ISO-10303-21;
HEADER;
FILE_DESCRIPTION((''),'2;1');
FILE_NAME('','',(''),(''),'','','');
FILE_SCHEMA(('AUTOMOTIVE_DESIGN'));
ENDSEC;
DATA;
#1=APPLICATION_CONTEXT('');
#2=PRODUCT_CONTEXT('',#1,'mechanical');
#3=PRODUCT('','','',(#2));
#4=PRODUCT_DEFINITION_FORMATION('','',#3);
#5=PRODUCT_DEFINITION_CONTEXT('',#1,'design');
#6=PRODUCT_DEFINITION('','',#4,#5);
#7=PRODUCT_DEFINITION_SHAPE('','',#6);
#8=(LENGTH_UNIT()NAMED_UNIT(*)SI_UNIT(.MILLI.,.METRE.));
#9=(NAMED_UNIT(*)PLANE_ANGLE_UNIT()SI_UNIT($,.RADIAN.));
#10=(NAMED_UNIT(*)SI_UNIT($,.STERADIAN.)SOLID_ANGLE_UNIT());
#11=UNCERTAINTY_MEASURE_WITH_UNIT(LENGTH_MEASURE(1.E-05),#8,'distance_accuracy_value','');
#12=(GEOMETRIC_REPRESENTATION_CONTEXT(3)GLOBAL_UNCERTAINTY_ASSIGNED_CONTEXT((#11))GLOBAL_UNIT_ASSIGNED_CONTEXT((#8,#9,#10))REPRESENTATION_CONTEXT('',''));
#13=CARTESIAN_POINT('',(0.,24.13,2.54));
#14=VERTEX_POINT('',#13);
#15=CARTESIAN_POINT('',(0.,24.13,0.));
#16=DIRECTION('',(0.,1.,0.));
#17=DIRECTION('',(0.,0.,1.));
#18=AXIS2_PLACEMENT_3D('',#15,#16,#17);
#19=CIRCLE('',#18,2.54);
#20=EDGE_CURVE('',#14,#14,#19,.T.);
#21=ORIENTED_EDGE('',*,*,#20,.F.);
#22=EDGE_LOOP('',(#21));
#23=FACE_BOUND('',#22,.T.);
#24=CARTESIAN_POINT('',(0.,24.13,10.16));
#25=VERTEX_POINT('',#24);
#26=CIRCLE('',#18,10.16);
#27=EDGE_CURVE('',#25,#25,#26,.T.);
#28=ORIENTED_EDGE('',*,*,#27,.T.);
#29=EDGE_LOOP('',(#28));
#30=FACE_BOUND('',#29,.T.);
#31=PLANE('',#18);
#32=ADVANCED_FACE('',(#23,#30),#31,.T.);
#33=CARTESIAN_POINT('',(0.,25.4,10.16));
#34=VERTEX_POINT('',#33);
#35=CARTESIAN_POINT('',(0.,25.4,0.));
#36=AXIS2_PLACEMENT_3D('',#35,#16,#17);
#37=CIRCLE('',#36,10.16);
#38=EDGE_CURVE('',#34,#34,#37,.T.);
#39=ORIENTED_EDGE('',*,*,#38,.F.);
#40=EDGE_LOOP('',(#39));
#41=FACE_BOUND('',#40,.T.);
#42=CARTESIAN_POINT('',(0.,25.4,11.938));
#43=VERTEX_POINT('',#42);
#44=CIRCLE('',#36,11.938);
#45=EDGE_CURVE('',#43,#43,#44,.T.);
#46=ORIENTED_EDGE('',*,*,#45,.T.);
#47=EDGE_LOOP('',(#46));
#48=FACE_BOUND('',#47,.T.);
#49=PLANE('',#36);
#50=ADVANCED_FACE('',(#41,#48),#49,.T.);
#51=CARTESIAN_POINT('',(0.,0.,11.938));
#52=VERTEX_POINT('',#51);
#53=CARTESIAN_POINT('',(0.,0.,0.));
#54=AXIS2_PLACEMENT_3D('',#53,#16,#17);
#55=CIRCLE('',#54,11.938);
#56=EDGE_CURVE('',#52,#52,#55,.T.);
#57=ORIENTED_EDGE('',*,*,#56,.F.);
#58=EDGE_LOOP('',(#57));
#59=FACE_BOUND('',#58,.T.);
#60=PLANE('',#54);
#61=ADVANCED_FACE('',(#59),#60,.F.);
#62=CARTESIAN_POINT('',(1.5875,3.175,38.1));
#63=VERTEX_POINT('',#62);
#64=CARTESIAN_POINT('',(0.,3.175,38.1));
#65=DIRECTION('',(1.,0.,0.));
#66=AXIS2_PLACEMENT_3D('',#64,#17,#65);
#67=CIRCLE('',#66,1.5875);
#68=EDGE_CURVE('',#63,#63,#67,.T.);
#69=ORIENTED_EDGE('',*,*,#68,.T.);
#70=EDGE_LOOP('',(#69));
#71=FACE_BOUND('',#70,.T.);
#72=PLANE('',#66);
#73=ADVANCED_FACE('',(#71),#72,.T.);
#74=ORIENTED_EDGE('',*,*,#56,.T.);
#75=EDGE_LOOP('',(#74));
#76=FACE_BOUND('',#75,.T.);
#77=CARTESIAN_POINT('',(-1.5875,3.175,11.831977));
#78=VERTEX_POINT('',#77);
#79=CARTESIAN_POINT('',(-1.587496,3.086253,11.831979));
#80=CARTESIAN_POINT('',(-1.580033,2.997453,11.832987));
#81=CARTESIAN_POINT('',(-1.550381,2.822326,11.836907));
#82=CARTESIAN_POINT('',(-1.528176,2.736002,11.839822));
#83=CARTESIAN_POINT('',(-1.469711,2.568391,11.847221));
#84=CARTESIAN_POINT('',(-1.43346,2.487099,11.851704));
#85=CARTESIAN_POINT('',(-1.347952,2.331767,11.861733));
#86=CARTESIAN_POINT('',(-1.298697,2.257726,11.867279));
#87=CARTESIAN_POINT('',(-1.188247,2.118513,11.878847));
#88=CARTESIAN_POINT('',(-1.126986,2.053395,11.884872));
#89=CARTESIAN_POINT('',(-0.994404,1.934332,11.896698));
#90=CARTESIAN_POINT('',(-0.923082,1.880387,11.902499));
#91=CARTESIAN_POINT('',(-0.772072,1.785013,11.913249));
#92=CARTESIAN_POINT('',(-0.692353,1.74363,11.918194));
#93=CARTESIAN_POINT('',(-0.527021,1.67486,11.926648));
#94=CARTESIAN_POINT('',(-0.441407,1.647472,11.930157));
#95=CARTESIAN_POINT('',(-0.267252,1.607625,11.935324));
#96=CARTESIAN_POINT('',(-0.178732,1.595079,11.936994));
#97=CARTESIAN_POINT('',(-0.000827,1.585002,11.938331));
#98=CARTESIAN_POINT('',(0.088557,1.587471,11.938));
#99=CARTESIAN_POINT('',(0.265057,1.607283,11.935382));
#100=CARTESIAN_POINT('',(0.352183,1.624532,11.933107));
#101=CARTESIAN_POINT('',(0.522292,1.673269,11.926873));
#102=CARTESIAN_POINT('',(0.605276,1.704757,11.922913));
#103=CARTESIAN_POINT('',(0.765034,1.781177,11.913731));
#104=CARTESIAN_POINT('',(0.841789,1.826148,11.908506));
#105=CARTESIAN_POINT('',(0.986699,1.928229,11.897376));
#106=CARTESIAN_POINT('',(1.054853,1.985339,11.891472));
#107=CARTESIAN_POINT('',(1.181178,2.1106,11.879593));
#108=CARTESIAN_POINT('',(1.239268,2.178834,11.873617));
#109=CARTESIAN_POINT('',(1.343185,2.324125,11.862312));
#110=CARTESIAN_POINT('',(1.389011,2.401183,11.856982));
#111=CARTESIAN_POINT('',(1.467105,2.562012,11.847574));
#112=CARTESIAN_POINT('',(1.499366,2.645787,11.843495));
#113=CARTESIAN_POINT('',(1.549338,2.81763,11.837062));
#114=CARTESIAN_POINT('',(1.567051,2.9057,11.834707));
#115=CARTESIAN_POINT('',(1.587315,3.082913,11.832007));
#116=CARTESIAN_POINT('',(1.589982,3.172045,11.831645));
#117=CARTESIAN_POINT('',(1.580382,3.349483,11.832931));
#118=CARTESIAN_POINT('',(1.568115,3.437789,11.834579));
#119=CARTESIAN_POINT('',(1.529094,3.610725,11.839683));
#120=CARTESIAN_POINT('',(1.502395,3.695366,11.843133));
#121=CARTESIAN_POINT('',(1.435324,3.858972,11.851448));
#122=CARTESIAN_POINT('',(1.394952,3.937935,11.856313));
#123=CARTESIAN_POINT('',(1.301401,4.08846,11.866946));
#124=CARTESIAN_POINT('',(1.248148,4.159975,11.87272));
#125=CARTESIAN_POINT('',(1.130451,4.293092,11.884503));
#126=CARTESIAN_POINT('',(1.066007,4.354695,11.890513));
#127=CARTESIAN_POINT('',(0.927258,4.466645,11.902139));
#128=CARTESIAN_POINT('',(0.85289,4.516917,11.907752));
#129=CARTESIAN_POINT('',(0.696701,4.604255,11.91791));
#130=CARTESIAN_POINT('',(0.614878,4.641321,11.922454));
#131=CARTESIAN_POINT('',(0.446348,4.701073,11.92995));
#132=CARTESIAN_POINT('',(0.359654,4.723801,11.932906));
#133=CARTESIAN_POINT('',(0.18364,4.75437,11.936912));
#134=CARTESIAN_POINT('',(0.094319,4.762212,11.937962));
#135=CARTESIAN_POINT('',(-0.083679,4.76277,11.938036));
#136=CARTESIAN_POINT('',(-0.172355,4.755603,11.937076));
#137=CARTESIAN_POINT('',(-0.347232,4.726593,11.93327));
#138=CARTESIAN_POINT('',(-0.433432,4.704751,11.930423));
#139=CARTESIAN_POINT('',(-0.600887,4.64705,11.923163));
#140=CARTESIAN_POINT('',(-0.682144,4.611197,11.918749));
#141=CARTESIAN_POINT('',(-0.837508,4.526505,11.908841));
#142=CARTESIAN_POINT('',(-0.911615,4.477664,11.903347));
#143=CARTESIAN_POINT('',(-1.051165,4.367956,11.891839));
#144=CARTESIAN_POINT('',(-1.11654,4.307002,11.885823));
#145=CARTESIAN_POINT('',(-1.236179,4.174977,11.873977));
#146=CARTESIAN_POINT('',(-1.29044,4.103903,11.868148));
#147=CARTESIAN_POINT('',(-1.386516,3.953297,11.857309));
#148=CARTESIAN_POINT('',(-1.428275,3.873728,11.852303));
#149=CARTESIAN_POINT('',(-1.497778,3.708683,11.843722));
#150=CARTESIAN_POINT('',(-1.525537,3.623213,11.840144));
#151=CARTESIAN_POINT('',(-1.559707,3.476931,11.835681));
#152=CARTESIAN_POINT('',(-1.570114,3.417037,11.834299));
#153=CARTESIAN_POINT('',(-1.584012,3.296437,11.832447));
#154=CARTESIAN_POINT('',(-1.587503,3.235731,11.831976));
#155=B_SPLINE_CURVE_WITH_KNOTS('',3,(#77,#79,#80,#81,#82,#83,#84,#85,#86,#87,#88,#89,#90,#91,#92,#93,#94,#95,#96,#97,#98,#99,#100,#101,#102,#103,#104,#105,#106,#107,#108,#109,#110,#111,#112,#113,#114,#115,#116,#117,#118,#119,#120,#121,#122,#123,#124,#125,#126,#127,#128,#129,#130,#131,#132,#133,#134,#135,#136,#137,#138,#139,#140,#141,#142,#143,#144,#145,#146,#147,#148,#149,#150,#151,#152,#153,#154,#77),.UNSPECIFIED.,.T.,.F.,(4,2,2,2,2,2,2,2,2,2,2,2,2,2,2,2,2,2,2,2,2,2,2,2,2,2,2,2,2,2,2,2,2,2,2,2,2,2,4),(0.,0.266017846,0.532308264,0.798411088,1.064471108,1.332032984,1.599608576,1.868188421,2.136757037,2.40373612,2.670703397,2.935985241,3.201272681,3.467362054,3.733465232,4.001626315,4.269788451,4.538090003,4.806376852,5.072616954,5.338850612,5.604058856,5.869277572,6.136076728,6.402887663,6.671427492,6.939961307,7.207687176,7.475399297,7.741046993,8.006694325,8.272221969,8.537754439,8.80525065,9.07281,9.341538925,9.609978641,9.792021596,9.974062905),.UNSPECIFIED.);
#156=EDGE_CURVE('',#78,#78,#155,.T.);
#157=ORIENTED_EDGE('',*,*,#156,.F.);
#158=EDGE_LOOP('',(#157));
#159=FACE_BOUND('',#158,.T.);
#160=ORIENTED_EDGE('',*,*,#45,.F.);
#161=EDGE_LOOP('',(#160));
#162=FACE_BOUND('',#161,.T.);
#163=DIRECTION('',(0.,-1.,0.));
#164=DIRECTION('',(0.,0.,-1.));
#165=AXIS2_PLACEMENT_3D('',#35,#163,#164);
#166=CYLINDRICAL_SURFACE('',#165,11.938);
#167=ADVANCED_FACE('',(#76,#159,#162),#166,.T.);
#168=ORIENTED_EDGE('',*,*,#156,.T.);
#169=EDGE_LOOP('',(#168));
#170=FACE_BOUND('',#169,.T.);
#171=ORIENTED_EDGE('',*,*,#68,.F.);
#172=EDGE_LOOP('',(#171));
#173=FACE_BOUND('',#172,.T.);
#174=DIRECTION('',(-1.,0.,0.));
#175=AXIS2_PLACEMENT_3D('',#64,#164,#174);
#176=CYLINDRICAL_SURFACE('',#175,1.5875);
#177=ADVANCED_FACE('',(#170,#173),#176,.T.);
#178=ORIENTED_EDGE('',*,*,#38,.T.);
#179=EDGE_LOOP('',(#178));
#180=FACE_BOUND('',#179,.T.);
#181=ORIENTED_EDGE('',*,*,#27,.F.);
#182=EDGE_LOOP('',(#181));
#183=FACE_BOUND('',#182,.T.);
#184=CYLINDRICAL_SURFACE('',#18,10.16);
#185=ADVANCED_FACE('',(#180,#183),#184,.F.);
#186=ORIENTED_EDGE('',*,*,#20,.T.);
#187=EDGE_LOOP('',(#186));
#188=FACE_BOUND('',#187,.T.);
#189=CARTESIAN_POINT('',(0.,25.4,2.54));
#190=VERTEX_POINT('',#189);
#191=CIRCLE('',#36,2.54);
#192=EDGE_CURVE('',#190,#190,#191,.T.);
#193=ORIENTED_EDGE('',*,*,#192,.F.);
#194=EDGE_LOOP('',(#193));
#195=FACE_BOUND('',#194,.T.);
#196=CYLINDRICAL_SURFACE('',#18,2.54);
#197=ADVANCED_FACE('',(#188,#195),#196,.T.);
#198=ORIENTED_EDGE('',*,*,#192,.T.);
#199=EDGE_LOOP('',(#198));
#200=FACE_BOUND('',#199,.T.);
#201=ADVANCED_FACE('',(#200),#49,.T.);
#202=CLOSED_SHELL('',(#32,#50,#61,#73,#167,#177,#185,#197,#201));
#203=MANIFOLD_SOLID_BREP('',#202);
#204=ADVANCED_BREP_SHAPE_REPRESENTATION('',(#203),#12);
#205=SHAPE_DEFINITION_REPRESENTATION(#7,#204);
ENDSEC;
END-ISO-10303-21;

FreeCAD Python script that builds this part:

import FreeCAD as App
import Part
import Sketcher
Q = App.Units.Quantity

doc = App.newDocument("Part")
params = doc.addObject("Spreadsheet::Sheet", "Params")
for row, (alias, value) in enumerate([
    ("sketch1_diameter", "0.94 in"),
    ("pad1_length", "1 in"),
    ("sketch2_diameter", "0.8 in"),
    ("sketch2_diameter2", "0.2 in"),
    ("pocket1_length", "0.05 in"),
    ("sketch3_diameter", "0.125 in"),
    ("pad2_length", "1.5 in"),
], start=1):
    params.set(f"A{row}", alias)
    params.set(f"B{row}", "=" + value)
    params.setAlias(f"B{row}", alias)

body = doc.addObject("PartDesign::Body", "Body")

sketch1 = body.newObject("Sketcher::SketchObject", "Sketch")
sketch1.AttachmentSupport = (doc.getObject("XZ_Plane"), [""])
sketch1.MapMode = "FlatFace"
sketch1.addGeometry(Part.Circle(App.Vector(0, 0, 0), App.Vector(0, 0, 1), 12), False)
sketch1.addConstraint([
    Sketcher.Constraint("Coincident", 0, 3, -1, 1),
    Sketcher.Constraint("Diameter", 0, Q("0.94 in")),
])
sketch1.setExpression("Constraints[1]", "Params.sketch1_diameter")
pad1 = body.newObject("PartDesign::Pad", "Pad")
pad1.Profile = sketch1
pad1.setExpression("Length", "Params.pad1_length")
pad1.Reversed = True

sketch2 = body.newObject("Sketcher::SketchObject", "Sketch001")
sketch2.AttachmentSupport = (doc.getObject("XZ_Plane"), [""])
sketch2.MapMode = "FlatFace"
sketch2.AttachmentOffset = App.Placement(App.Vector(0, 0, -1 * 25.4), App.Rotation())
sketch2.addGeometry([
    Part.Circle(App.Vector(0, 0, 0), App.Vector(0, 0, 1), 10.2),
    Part.Circle(App.Vector(0, 0, 0), App.Vector(0, 0, 1), 2.5),
], False)
sketch2.addConstraint([
    Sketcher.Constraint("Coincident", 0, 3, -1, 1),
    Sketcher.Constraint("Coincident", 1, 3, -1, 1),
    Sketcher.Constraint("Diameter", 0, Q("0.8 in")),
    Sketcher.Constraint("Diameter", 1, Q("0.2 in")),
])
sketch2.setExpression("Constraints[2]", "Params.sketch2_diameter")
sketch2.setExpression("Constraints[3]", "Params.sketch2_diameter2")
pocket1 = body.newObject("PartDesign::Pocket", "Pocket")
pocket1.Profile = sketch2
pocket1.setExpression("Length", "Params.pocket1_length")
pocket1.Reversed = True

sketch3 = body.newObject("Sketcher::SketchObject", "Sketch002")
sketch3.AttachmentSupport = (doc.getObject("XY_Plane"), [""])
sketch3.MapMode = "FlatFace"
sketch3.addGeometry(Part.Circle(App.Vector(0, 3.2, 0), App.Vector(0, 0, 1), 1.6), False)
sketch3.addConstraint([
    Sketcher.Constraint("PointOnObject", 0, 3, -2),
    Sketcher.Constraint("Diameter", 0, Q("0.125 in")),
    Sketcher.Constraint("DistanceY", -1, 1, 0, 3, Q("0.125 in")),
])
sketch3.setExpression("Constraints[1]", "Params.sketch3_diameter")
pad2 = body.newObject("PartDesign::Pad", "Pad001")
pad2.Profile = sketch3
pad2.setExpression("Length", "Params.pad2_length")

doc.recompute()
